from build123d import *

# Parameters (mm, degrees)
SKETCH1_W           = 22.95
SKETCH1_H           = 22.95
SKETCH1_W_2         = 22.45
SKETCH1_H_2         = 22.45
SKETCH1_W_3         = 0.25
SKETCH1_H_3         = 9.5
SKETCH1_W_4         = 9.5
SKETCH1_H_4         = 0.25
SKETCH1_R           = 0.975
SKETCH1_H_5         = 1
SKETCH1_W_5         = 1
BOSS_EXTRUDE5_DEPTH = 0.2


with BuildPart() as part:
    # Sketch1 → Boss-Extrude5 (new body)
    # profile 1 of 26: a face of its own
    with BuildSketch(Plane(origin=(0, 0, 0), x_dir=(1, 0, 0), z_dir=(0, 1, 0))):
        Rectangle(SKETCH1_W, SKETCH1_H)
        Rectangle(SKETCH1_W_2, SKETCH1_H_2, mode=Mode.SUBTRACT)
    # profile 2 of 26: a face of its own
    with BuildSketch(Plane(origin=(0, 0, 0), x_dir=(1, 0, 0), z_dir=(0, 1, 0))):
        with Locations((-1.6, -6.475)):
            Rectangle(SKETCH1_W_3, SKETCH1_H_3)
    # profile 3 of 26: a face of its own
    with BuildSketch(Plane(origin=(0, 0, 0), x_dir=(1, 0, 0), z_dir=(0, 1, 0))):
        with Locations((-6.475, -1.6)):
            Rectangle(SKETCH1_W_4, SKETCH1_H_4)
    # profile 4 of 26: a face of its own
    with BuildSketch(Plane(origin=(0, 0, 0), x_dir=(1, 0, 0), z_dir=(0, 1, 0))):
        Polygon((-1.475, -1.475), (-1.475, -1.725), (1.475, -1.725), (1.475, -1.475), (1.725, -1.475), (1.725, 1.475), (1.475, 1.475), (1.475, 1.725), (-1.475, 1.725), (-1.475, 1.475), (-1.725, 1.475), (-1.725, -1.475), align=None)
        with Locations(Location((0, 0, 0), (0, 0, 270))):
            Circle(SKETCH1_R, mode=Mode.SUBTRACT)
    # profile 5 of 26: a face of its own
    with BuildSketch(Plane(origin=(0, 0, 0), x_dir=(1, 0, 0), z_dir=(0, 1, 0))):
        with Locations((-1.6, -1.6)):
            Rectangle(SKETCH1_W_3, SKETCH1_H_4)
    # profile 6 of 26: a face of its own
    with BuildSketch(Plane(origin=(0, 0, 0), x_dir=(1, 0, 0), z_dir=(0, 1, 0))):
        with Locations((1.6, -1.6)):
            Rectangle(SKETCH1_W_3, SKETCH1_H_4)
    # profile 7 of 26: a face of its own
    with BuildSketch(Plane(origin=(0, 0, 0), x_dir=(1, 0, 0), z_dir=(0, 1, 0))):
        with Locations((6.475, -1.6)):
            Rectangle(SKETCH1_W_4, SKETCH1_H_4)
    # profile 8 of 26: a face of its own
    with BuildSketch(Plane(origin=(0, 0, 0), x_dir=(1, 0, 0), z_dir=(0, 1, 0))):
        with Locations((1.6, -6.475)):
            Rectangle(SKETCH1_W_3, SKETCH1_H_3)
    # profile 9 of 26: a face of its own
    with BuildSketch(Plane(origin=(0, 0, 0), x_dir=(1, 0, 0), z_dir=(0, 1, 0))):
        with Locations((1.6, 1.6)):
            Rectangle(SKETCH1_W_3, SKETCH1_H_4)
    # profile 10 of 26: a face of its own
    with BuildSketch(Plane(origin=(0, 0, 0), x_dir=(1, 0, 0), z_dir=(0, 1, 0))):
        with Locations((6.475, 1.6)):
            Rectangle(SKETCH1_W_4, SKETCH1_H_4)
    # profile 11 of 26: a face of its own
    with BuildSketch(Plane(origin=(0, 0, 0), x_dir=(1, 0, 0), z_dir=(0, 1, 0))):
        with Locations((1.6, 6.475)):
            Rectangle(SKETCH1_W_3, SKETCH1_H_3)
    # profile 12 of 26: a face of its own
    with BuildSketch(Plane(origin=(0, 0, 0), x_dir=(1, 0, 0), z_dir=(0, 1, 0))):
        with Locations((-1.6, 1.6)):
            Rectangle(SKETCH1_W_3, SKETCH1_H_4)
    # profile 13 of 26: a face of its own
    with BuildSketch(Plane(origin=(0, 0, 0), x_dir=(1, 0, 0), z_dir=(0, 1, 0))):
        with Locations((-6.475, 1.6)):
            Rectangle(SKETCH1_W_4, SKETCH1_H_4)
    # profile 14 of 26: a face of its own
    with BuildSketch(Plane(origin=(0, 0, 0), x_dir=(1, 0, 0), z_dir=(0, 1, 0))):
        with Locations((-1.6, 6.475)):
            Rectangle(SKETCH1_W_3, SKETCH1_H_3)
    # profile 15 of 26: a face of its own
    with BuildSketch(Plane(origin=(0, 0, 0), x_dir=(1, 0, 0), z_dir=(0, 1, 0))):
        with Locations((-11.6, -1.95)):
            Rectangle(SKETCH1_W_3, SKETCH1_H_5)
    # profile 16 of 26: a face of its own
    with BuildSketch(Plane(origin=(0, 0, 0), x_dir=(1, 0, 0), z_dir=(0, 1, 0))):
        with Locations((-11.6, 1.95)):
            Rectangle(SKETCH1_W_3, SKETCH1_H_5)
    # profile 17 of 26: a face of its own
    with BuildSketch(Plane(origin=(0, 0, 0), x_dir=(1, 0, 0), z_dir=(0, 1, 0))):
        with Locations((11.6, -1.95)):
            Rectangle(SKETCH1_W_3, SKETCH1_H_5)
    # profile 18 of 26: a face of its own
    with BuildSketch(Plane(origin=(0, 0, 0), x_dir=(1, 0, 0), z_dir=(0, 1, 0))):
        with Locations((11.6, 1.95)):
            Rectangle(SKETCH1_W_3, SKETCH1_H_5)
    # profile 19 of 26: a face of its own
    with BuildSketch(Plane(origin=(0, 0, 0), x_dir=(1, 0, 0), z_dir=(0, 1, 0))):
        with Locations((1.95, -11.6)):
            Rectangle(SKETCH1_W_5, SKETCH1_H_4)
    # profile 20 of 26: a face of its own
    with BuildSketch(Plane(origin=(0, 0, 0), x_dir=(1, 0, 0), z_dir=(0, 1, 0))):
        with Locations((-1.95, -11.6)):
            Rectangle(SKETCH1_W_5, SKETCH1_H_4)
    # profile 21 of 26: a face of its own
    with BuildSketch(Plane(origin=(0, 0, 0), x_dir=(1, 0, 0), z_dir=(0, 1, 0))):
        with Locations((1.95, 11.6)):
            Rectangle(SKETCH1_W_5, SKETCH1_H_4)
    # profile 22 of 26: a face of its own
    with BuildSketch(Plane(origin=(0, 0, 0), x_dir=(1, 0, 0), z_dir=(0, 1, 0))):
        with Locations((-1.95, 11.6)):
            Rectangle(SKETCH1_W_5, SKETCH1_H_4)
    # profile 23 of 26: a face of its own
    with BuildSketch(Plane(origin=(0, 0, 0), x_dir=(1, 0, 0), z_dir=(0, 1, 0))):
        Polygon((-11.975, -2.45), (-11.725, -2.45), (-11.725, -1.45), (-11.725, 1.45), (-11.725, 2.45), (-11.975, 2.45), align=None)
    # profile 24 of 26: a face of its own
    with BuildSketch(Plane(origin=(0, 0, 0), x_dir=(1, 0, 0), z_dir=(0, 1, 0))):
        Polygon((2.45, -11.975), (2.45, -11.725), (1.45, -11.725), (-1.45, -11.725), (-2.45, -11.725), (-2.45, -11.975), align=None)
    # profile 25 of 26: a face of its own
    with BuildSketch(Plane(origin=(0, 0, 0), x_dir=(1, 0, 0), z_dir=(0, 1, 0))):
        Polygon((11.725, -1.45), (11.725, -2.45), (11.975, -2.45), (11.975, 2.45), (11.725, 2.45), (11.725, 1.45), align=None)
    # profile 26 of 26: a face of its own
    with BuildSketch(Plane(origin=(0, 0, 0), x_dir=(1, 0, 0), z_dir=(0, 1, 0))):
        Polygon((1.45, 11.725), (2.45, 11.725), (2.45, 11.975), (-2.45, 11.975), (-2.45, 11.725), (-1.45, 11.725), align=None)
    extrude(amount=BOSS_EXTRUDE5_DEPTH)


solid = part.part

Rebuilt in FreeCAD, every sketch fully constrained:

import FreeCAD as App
import Part
import Sketcher
from FreeCAD import Vector
Q = App.Units.Quantity


def add_polygon(sketch, points):
    """Adds a closed chain of lines whose ends are joined by coincident constraints."""
    first, n = sketch.GeometryCount, len(points)
    for a, b in zip(points, points[1:] + points[:1]):
        sketch.addGeometry(Part.LineSegment(App.Vector(*a, 0), App.Vector(*b, 0)), False)
    for i in range(n):
        sketch.addConstraint(Sketcher.Constraint("Coincident", first + i, 2, first + (i + 1) % n, 1))

doc = App.newDocument("Part")
body = doc.addObject("PartDesign::Body", "Body")

# Sketch on XZ plane
sketch1 = body.newObject("Sketcher::SketchObject", "Sketch")
sketch1.AttachmentSupport = (doc.getObject("XZ_Plane"), [""])
sketch1.MapMode = "FlatFace"
add_polygon(sketch1, [(-11.475, 2.45), (-11.475, 11.475), (-2.45, 11.475), (-2.45, 11.975), (2.45, 11.975), (2.45, 11.475), (11.475, 11.475), (11.475, 2.45), (11.975, 2.45), (11.975, -2.45), (11.475, -2.45), (11.475, -11.475), (2.45, -11.475), (2.45, -11.975), (-2.45, -11.975), (-2.45, -11.475), (-11.475, -11.475), (-11.475, -2.45), (-11.975, -2.45), (-11.975, 2.45)])  # lines 0-19
add_polygon(sketch1, [(-11.475, -1.45), (-11.475, 1.45), (-11.725, 1.45), (-11.725, -1.45)])  # lines 20-23
add_polygon(sketch1, [(-1.45, 11.475), (1.45, 11.475), (1.45, 11.725), (-1.45, 11.725)])  # lines 24-27
add_polygon(sketch1, [(1.45, -11.475), (-1.45, -11.475), (-1.45, -11.725), (1.45, -11.725)])  # lines 28-31
add_polygon(sketch1, [(11.475, 1.45), (11.475, -1.45), (11.725, -1.45), (11.725, 1.45)])  # lines 32-35
add_polygon(sketch1, [(-1.725, 11.225), (-11.225, 11.225), (-11.225, 1.725), (-1.725, 1.725)])  # lines 36-39
add_polygon(sketch1, [(1.475, 11.225), (-1.475, 11.225), (-1.475, 1.725), (1.475, 1.725)])  # lines 40-43
add_polygon(sketch1, [(11.225, 11.225), (1.725, 11.225), (1.725, 1.725), (11.225, 1.725)])  # lines 44-47
add_polygon(sketch1, [(11.225, -1.475), (11.225, 1.475), (1.725, 1.475), (1.725, -1.475)])  # lines 48-51
add_polygon(sketch1, [(11.225, -11.225), (11.225, -1.725), (1.725, -1.725), (1.725, -11.225)])  # lines 52-55
add_polygon(sketch1, [(-11.225, -11.225), (-1.725, -11.225), (-1.725, -1.725), (-11.225, -1.725)])  # lines 56-59
add_polygon(sketch1, [(-1.475, -11.225), (1.475, -11.225), (1.475, -1.725), (-1.475, -1.725)])  # lines 60-63
add_polygon(sketch1, [(-11.225, 1.475), (-11.225, -1.475), (-1.725, -1.475), (-1.725, 1.475)])  # lines 64-67
sketch1.addGeometry(Part.Circle(Vector(0, 0, 0), Vector(0, 0, 1), 0.975), False)  # 68
sketch1.addConstraint([
    Sketcher.Constraint("Vertical", 0),
    Sketcher.Constraint("Horizontal", 1),
    Sketcher.Constraint("Vertical", 2),
    Sketcher.Constraint("Horizontal", 3),
    Sketcher.Constraint("Vertical", 4),
    Sketcher.Constraint("Horizontal", 5),
    Sketcher.Constraint("Vertical", 6),
    Sketcher.Constraint("Horizontal", 7),
    Sketcher.Constraint("Vertical", 8),
    Sketcher.Constraint("Horizontal", 9),
    Sketcher.Constraint("Vertical", 10),
    Sketcher.Constraint("Horizontal", 11),
    Sketcher.Constraint("Vertical", 12),
    Sketcher.Constraint("Horizontal", 13),
    Sketcher.Constraint("Vertical", 14),
    Sketcher.Constraint("Horizontal", 15),
    Sketcher.Constraint("Vertical", 16),
    Sketcher.Constraint("Horizontal", 17),
    Sketcher.Constraint("Vertical", 18),
    Sketcher.Constraint("Horizontal", 19),
    Sketcher.Constraint("Vertical", 20),
    Sketcher.Constraint("Horizontal", 21),
    Sketcher.Constraint("Vertical", 22),
    Sketcher.Constraint("Horizontal", 23),
    Sketcher.Constraint("Horizontal", 24),
    Sketcher.Constraint("Vertical", 25),
    Sketcher.Constraint("Horizontal", 26),
    Sketcher.Constraint("Vertical", 27),
    Sketcher.Constraint("Horizontal", 28),
    Sketcher.Constraint("Vertical", 29),
    Sketcher.Constraint("Horizontal", 30),
    Sketcher.Constraint("Vertical", 31),
    Sketcher.Constraint("Vertical", 32),
    Sketcher.Constraint("Horizontal", 33),
    Sketcher.Constraint("Vertical", 34),
    Sketcher.Constraint("Horizontal", 35),
    Sketcher.Constraint("Horizontal", 36),
    Sketcher.Constraint("Vertical", 37),
    Sketcher.Constraint("Horizontal", 38),
    Sketcher.Constraint("Vertical", 39),
    Sketcher.Constraint("Horizontal", 40),
    Sketcher.Constraint("Vertical", 41),
    Sketcher.Constraint("Horizontal", 42),
    Sketcher.Constraint("Vertical", 43),
    Sketcher.Constraint("Horizontal", 44),
    Sketcher.Constraint("Vertical", 45),
    Sketcher.Constraint("Horizontal", 46),
    Sketcher.Constraint("Vertical", 47),
    Sketcher.Constraint("Vertical", 48),
    Sketcher.Constraint("Horizontal", 49),
    Sketcher.Constraint("Vertical", 50),
    Sketcher.Constraint("Horizontal", 51),
    Sketcher.Constraint("Vertical", 52),
    Sketcher.Constraint("Horizontal", 53),
    Sketcher.Constraint("Vertical", 54),
    Sketcher.Constraint("Horizontal", 55),
    Sketcher.Constraint("Horizontal", 56),
    Sketcher.Constraint("Vertical", 57),
    Sketcher.Constraint("Horizontal", 58),
    Sketcher.Constraint("Vertical", 59),
    Sketcher.Constraint("Horizontal", 60),
    Sketcher.Constraint("Vertical", 61),
    Sketcher.Constraint("Horizontal", 62),
    Sketcher.Constraint("Vertical", 63),
    Sketcher.Constraint("Vertical", 64),
    Sketcher.Constraint("Horizontal", 65),
    Sketcher.Constraint("Vertical", 66),
    Sketcher.Constraint("Horizontal", 67),
    Sketcher.Constraint("Coincident", 68, 3, -1, 1),
    Sketcher.Constraint("Symmetric", 0, 2, 10, 2, -1, 1),
    Sketcher.Constraint("Symmetric", 2, 2, 12, 2, -1, 1),
    Sketcher.Constraint("Symmetric", 4, 2, 14, 2, -1, 1),
    Sketcher.Constraint("Symmetric", 6, 2, 16, 2, -1, 1),
    Sketcher.Constraint("Symmetric", 8, 2, 18, 2, -1, 1),
    Sketcher.Constraint("Symmetric", 24, 2, 28, 2, -1, 1),
    Sketcher.Constraint("Symmetric", 26, 2, 30, 2, -1, 1),
    Sketcher.Constraint("Symmetric", 20, 2, 32, 2, -1, 1),
    Sketcher.Constraint("Symmetric", 22, 2, 34, 2, -1, 1),
    Sketcher.Constraint("Symmetric", 37, 2, 52, 2, -1, 1),
    Sketcher.Constraint("Symmetric", 39, 2, 54, 2, -1, 1),
    Sketcher.Constraint("Symmetric", 44, 2, 56, 2, -1, 1),
    Sketcher.Constraint("Symmetric", 46, 2, 58, 2, -1, 1),
    Sketcher.Constraint("Symmetric", 40, 2, 60, 2, -1, 1),
    Sketcher.Constraint("Symmetric", 42, 2, 62, 2, -1, 1),
    Sketcher.Constraint("Symmetric", 48, 2, 64, 2, -1, 1),
    Sketcher.Constraint("Symmetric", 50, 2, 66, 2, -1, 1),
    Sketcher.Constraint("Symmetric", 1, 2, 4, 2, -2),
    Sketcher.Constraint("Symmetric", 9, 2, 16, 2, -2),
    Sketcher.Constraint("Symmetric", 39, 2, 44, 2, -2),
    Sketcher.Constraint("Symmetric", 37, 2, 46, 2, -2),
    Sketcher.Constraint("Horizontal", 5, 2, 24, 2),
    Sketcher.Constraint("Horizontal", 23, 2, 32, 2),
    Sketcher.Constraint("Horizontal", 39, 2, 40, 2),
    Sketcher.Constraint("Horizontal", 38, 2, 41, 2),
    Sketcher.Constraint("Horizontal", 51, 2, 64, 2),
    Sketcher.Constraint("Vertical", 19, 2, 20, 2),
    Sketcher.Constraint("Vertical", 27, 2, 28, 2),
    Sketcher.Constraint("Vertical", 47, 2, 48, 2),
    Sketcher.Constraint("Vertical", 45, 2, 49, 2),
    Sketcher.Constraint("Vertical", 43, 2, 60, 2),
    Sketcher.Constraint("Equal", 15, 0),
    Sketcher.Constraint("Equal", 19, 2),
    Sketcher.Constraint("Equal", 13, 8),
    Sketcher.Constraint("Equal", 30, 20),
    Sketcher.Constraint("Equal", 35, 25),
    Sketcher.Constraint("Equal", 67, 37),
    Sketcher.Constraint("Equal", 62, 48),
    Sketcher.Constraint("Diameter", 68, Q("1.95 mm")),
    Sketcher.Constraint("DistanceX", 3, 1, 3, 2, Q("4.9 mm")),
    Sketcher.Constraint("DistanceX", 7, 1, 7, 2, Q("0.5 mm")),
    Sketcher.Constraint("DistanceX", 24, 1, 24, 2, Q("2.9 mm")),
    Sketcher.Constraint("DistanceX", 36, 2, 36, 1, Q("9.5 mm")),
    Sketcher.Constraint("DistanceX", 21, 2, 21, 1, Q("0.25 mm")),
    Sketcher.Constraint("DistanceX", 40, 2, 40, 1, Q("2.95 mm")),
    Sketcher.Constraint("DistanceX", 1, 1, 1, 2, Q("9.025 mm")),
    Sketcher.Constraint("DistanceX", 36, 2, -1, 1, Q("11.225 mm")),
    Sketcher.Constraint("DistanceY", -1, 1, 36, 2, Q("11.225 mm")),
])
pad1 = body.newObject("PartDesign::Pad", "Pad")
pad1.Profile = sketch1
pad1.Length = 0.2
pad1.Reversed = True

doc.recompute()
